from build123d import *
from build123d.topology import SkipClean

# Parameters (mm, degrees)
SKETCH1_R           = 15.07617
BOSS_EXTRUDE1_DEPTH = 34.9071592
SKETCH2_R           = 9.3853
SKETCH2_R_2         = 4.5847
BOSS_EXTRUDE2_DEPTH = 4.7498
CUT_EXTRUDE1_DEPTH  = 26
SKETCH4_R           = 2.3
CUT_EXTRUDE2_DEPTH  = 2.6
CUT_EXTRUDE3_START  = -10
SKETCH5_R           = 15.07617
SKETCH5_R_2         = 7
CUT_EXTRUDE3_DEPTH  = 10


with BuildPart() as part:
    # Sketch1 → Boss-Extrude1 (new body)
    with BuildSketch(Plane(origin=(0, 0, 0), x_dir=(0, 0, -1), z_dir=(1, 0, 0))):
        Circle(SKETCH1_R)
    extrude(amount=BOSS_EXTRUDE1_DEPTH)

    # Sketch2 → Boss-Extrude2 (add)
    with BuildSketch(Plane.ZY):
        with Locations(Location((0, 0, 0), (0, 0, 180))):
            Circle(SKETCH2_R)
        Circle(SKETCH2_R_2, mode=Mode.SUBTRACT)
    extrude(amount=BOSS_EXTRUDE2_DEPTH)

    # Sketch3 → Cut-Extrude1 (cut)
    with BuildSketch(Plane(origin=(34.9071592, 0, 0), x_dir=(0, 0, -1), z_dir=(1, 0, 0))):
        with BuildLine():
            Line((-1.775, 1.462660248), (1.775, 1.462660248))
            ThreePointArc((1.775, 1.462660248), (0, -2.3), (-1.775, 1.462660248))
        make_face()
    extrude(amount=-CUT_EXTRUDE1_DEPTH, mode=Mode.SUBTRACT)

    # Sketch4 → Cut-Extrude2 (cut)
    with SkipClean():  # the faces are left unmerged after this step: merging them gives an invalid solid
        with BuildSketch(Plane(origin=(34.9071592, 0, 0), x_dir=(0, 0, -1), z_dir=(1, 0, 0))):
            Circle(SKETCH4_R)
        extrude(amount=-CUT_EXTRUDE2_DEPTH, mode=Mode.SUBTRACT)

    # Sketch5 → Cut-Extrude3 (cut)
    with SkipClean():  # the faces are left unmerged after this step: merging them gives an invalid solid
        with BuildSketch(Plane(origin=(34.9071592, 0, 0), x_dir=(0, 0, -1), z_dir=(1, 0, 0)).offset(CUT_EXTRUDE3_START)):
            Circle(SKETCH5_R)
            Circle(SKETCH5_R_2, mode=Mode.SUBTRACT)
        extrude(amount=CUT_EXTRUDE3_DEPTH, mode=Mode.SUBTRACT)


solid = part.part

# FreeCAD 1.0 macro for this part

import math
import FreeCAD as App
import Part
import Sketcher

V = App.Vector
Q = App.Units.Quantity

doc = App.newDocument("Part")
body = doc.addObject("PartDesign::Body", "Body")

sketch1 = body.newObject("Sketcher::SketchObject", "Sketch")
sketch1.AttachmentSupport = (doc.getObject("YZ_Plane"), [""])
sketch1.MapMode = "FlatFace"
sketch1.addGeometry(Part.Circle(V(0, 0, 0), V(0, 0, 1), 15), False)
sketch1.addConstraint([
    Sketcher.Constraint("Coincident", 0, 3, -1, 1),
    Sketcher.Constraint("Diameter", 0, Q("30.15234 mm")),
])
pad1 = body.newObject("PartDesign::Pad", "Pad")
pad1.Profile = sketch1
pad1.Length = 34.907159

sketch2 = body.newObject("Sketcher::SketchObject", "Sketch001")
sketch2.AttachmentSupport = (doc.getObject("YZ_Plane"), [""])
sketch2.MapMode = "FlatFace"
sketch2.addGeometry([
    Part.Circle(V(0, 0, 0), V(0, 0, 1), 9.4),
    Part.Circle(V(0, 0, 0), V(0, 0, 1), 4.6),
], False)
sketch2.addConstraint([
    Sketcher.Constraint("Coincident", 0, 3, -1, 1),
    Sketcher.Constraint("Coincident", 1, 3, -1, 1),
    Sketcher.Constraint("Diameter", 0, Q("18.7706 mm")),
    Sketcher.Constraint("Diameter", 1, Q("9.1694 mm")),
])
pad2 = body.newObject("PartDesign::Pad", "Pad001")
pad2.Profile = sketch2
pad2.Length = 4.7498
pad2.Reversed = True

sketch3 = body.newObject("Sketcher::SketchObject", "Sketch002")
sketch3.AttachmentSupport = (doc.getObject("YZ_Plane"), [""])
sketch3.MapMode = "FlatFace"
sketch3.AttachmentOffset = App.Placement(V(0, 0, 34.907159), App.Rotation())
sketch3.addGeometry([
    Part.LineSegment(V(1.5, -1.8, 0), V(1.5, 1.8, 0)),
    Part.ArcOfCircle(Part.Circle(V(0, 0, 0), V(0, 0, 1), 2.3), math.radians(51), math.radians(309)),
], False)
sketch3.addConstraint([
    Sketcher.Constraint("Coincident", 0, 1, 1, 2),
    Sketcher.Constraint("Coincident", 1, 1, 0, 2),
    Sketcher.Constraint("Vertical", 0),
    Sketcher.Constraint("Coincident", 1, 3, -1, 1),
    Sketcher.Constraint("Radius", 1, Q("2.3 mm")),
    Sketcher.Constraint("DistanceY", 0, 1, 0, 2, Q("3.55 mm")),
])
pocket1 = body.newObject("PartDesign::Pocket", "Pocket")
pocket1.Profile = sketch3
pocket1.Length = 26

sketch4 = body.newObject("Sketcher::SketchObject", "Sketch003")
sketch4.AttachmentSupport = (doc.getObject("YZ_Plane"), [""])
sketch4.MapMode = "FlatFace"
sketch4.AttachmentOffset = App.Placement(V(0, 0, 34.907159), App.Rotation())
sketch4.addGeometry(Part.Circle(V(0, 0, 0), V(0, 0, 1), 2.3), False)
sketch4.addConstraint([
    Sketcher.Constraint("Coincident", 0, 3, -1, 1),
    Sketcher.Constraint("Diameter", 0, Q("4.6 mm")),
])
pocket2 = body.newObject("PartDesign::Pocket", "Pocket001")
pocket2.Profile = sketch4
pocket2.Length = 2.6

sketch5 = body.newObject("Sketcher::SketchObject", "Sketch004")
sketch5.AttachmentSupport = (doc.getObject("YZ_Plane"), [""])
sketch5.MapMode = "FlatFace"
sketch5.AttachmentOffset = App.Placement(V(0, 0, 24.907159), App.Rotation())
sketch5.addGeometry([
    Part.Circle(V(0, 0, 0), V(0, 0, 1), 15),
    Part.Circle(V(0, 0, 0), V(0, 0, 1), 7),
], False)
sketch5.addConstraint([
    Sketcher.Constraint("Coincident", 0, 3, -1, 1),
    Sketcher.Constraint("Coincident", 1, 3, -1, 1),
    Sketcher.Constraint("Diameter", 1, Q("14 mm")),
    Sketcher.Constraint("Diameter", 0, Q("30.15234 mm")),
])
pocket3 = body.newObject("PartDesign::Pocket", "Pocket002")
pocket3.Profile = sketch5
pocket3.Length = 10
pocket3.Reversed = True

doc.recompute()
